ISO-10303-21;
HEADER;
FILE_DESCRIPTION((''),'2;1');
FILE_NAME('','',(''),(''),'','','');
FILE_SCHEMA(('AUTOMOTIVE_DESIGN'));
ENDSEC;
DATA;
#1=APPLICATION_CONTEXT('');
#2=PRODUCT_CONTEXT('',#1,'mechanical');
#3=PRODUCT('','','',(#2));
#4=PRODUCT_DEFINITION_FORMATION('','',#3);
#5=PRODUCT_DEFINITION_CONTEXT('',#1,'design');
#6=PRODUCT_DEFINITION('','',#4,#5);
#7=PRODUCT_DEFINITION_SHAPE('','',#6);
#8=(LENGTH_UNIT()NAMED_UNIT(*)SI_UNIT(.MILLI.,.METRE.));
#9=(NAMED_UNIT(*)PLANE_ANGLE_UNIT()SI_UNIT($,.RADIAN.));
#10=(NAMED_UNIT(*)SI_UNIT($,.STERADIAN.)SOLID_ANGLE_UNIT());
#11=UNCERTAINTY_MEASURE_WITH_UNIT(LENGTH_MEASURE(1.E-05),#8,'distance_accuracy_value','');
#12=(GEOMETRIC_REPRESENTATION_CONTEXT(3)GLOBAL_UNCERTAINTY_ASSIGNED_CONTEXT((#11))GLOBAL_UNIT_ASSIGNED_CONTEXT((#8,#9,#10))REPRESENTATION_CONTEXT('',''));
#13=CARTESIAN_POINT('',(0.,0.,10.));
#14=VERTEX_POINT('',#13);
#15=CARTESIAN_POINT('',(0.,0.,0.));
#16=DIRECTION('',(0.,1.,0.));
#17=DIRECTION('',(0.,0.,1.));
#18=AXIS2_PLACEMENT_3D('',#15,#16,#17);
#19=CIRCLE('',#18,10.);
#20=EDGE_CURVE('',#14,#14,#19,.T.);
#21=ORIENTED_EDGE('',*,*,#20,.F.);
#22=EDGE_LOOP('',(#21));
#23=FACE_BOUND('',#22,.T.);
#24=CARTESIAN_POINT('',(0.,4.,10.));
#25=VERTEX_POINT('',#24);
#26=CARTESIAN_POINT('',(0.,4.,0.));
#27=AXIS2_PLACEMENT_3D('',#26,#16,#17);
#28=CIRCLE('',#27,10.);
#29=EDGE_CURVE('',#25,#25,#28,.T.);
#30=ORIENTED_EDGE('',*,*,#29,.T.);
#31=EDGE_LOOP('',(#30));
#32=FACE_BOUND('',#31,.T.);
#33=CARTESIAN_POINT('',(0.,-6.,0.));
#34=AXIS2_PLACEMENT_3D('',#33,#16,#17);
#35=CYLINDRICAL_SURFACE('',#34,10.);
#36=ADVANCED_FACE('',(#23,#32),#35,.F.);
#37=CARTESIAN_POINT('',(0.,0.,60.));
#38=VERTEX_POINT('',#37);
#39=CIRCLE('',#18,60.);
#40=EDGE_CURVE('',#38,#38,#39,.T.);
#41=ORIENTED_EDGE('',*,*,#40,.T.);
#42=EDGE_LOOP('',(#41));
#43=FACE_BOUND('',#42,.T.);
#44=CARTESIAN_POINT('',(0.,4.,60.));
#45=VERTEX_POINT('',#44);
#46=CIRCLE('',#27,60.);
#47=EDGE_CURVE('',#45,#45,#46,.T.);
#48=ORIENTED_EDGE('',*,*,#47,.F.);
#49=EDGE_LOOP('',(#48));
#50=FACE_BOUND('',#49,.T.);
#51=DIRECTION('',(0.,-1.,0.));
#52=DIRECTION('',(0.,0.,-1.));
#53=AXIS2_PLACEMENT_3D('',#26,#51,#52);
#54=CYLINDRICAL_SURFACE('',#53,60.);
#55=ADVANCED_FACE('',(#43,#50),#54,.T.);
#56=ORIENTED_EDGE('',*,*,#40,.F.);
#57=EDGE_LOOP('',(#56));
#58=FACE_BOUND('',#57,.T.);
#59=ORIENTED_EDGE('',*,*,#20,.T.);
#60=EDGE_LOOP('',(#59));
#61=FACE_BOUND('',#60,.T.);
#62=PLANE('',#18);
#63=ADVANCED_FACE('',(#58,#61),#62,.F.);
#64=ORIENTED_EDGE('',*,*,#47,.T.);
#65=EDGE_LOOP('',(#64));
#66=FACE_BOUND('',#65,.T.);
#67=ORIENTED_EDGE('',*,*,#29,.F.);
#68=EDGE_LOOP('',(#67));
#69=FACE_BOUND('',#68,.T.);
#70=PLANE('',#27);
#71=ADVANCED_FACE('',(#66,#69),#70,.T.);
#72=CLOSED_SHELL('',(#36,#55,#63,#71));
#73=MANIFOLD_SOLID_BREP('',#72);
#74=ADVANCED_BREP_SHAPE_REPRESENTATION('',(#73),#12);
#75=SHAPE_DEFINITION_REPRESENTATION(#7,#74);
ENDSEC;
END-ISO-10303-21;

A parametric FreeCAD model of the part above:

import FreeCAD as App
import Part
import Sketcher

V = App.Vector
Q = App.Units.Quantity

doc = App.newDocument("Part")
body = doc.addObject("PartDesign::Body", "Body")

# Sketch on XZ plane
sketch1 = body.newObject("Sketcher::SketchObject", "Sketch")
sketch1.AttachmentSupport = (doc.getObject("XZ_Plane"), [""])
sketch1.MapMode = "FlatFace"
sketch1.addGeometry(Part.Circle(V(0, 0, 0), V(0, 0, 1), 60), False)
sketch1.addConstraint([
    Sketcher.Constraint("Coincident", 0, 3, -1, 1),
    Sketcher.Constraint("Diameter", 0, Q("120 mm")),
])
pad1 = body.newObject("PartDesign::Pad", "Pad")
pad1.Profile = sketch1
pad1.Length = 4
pad1.Reversed = True

# Sketch on XZ plane
sketch2 = body.newObject("Sketcher::SketchObject", "Sketch001")
sketch2.AttachmentSupport = (doc.getObject("XZ_Plane"), [""])
sketch2.MapMode = "FlatFace"
sketch2.AttachmentOffset = App.Placement(V(0, 0, -4), App.Rotation())
sketch2.addGeometry(Part.Circle(V(0, 0, 0), V(0, 0, 1), 10), False)
sketch2.addConstraint([
    Sketcher.Constraint("Coincident", 0, 3, -1, 1),
    Sketcher.Constraint("Diameter", 0, Q("20 mm")),
])
pocket1 = body.newObject("PartDesign::Pocket", "Pocket")
pocket1.Profile = sketch2
pocket1.Length = 10
pocket1.Reversed = True

doc.recompute()
